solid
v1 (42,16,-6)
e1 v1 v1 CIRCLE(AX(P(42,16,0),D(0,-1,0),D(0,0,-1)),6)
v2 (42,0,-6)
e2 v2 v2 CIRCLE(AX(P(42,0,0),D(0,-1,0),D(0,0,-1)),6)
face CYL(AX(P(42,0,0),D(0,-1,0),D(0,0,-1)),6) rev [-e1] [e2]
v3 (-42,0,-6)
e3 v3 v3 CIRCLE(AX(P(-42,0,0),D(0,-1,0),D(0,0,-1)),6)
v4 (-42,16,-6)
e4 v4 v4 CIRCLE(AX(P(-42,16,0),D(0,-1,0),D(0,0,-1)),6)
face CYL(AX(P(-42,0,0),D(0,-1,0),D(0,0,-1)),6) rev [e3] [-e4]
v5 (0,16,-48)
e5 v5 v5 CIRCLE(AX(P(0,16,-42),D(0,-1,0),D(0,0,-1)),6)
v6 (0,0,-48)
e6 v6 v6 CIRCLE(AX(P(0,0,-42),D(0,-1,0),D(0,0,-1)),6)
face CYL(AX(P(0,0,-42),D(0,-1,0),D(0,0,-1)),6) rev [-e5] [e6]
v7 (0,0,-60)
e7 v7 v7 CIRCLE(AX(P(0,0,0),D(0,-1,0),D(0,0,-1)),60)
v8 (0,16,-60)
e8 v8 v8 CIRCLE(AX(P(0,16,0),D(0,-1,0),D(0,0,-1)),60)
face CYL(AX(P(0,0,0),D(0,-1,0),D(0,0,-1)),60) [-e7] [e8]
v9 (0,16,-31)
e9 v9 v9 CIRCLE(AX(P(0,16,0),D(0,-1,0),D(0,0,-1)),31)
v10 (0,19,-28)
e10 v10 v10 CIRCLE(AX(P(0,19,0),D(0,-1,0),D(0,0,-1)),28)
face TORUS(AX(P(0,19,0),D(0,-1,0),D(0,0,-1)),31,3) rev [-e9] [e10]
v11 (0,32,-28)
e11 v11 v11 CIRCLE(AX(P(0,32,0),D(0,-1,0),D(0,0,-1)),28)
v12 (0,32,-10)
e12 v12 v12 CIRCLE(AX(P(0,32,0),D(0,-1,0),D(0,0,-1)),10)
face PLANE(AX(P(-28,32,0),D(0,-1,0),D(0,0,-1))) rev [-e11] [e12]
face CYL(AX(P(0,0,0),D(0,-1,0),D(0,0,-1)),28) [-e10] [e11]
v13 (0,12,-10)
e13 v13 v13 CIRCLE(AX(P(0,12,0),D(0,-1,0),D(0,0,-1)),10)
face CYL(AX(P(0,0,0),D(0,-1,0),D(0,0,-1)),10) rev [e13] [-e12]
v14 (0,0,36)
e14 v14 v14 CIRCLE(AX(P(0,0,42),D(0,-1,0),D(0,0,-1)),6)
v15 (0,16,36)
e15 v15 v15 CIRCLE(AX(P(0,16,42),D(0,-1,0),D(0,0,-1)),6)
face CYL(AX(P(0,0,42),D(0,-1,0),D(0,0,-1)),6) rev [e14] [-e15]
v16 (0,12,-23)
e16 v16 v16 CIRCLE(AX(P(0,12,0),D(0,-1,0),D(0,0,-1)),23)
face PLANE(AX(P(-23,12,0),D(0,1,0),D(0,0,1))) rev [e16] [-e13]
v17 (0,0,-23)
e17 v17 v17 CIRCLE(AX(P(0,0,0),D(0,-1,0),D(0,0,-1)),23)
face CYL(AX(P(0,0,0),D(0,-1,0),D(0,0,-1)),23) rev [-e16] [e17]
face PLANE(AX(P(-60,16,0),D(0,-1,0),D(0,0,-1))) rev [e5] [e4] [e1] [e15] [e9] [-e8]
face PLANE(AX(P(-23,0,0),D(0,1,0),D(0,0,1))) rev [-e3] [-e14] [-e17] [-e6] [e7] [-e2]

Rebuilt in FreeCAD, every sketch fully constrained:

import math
import FreeCAD as App
import Part
import Sketcher
Q = App.Units.Quantity

doc = App.newDocument("Part")
body = doc.addObject("PartDesign::Body", "Body")

sketch1 = body.newObject("Sketcher::SketchObject", "Sketch")
sketch1.AttachmentSupport = (doc.getObject("XY_Plane"), [""])
sketch1.MapMode = "FlatFace"
sketch1.addGeometry([
    Part.LineSegment(App.Vector(-60, 16, 0), App.Vector(-60, 0, 0)),
    Part.LineSegment(App.Vector(-60, 0, 0), App.Vector(-23, 0, 0)),
    Part.LineSegment(App.Vector(-23, 0, 0), App.Vector(-23, 12, 0)),
    Part.LineSegment(App.Vector(-23, 12, 0), App.Vector(-10, 12, 0)),
    Part.LineSegment(App.Vector(-10, 12, 0), App.Vector(-10, 32, 0)),
    Part.LineSegment(App.Vector(-10, 32, 0), App.Vector(-28, 32, 0)),
    Part.LineSegment(App.Vector(-28, 32, 0), App.Vector(-28, 19, 0)),
    Part.ArcOfCircle(Part.Circle(App.Vector(-31, 19, 0), App.Vector(0, 0, 1), 3), math.radians(-90), math.radians(0)),
    Part.LineSegment(App.Vector(-31, 16, 0), App.Vector(-60, 16, 0)),
], False)
sketch1.addConstraint([
    Sketcher.Constraint("Coincident", 0, 2, 1, 1),
    Sketcher.Constraint("Coincident", 1, 2, 2, 1),
    Sketcher.Constraint("Coincident", 2, 2, 3, 1),
    Sketcher.Constraint("Coincident", 3, 2, 4, 1),
    Sketcher.Constraint("Coincident", 4, 2, 5, 1),
    Sketcher.Constraint("Coincident", 5, 2, 6, 1),
    Sketcher.Constraint("Tangent", 6, 2, 7, 2),
    Sketcher.Constraint("Tangent", 7, 1, 8, 1),
    Sketcher.Constraint("Coincident", 8, 2, 0, 1),
    Sketcher.Constraint("Vertical", 0),
    Sketcher.Constraint("Horizontal", 1),
    Sketcher.Constraint("Vertical", 2),
    Sketcher.Constraint("Horizontal", 3),
    Sketcher.Constraint("Vertical", 4),
    Sketcher.Constraint("Horizontal", 5),
    Sketcher.Constraint("Vertical", 6),
    Sketcher.Constraint("Horizontal", 8),
    Sketcher.Constraint("PointOnObject", 0, 2, -1),
    Sketcher.Constraint("Equal", 3, 6),
    Sketcher.Constraint("Radius", 7, Q("3 mm")),
    Sketcher.Constraint("DistanceX", 1, 1, 1, 2, Q("37 mm")),
    Sketcher.Constraint("DistanceX", 3, 1, 3, 2, Q("13 mm")),
    Sketcher.Constraint("DistanceX", 5, 2, 5, 1, Q("18 mm")),
    Sketcher.Constraint("DistanceY", 0, 2, 0, 1, Q("16 mm")),
    Sketcher.Constraint("DistanceY", 2, 1, 2, 2, Q("12 mm")),
    Sketcher.Constraint("DistanceX", 7, 3, -1, 1, Q("31 mm")),
])
revolution = body.newObject("PartDesign::Revolution", "Revolution")
revolution.Profile = sketch1
revolution.ReferenceAxis = (sketch1, ["V_Axis"])
revolution.Angle = 360

sketch2 = body.newObject("Sketcher::SketchObject", "Sketch001")
sketch2.AttachmentSupport = (doc.getObject("XZ_Plane"), [""])
sketch2.MapMode = "FlatFace"
sketch2.addGeometry(Part.Circle(App.Vector(0, 42, 0), App.Vector(0, 0, 1), 6), False)
sketch2.addConstraint([
    Sketcher.Constraint("PointOnObject", 0, 3, -2),
    Sketcher.Constraint("Diameter", 0, Q("12 mm")),
    Sketcher.Constraint("DistanceY", -1, 1, 0, 3, Q("42 mm")),
])
doc.recompute()
hole = body.newObject("PartDesign::Hole", "Hole")
hole.Profile = sketch2
hole.ThreadType = "None"
hole.Diameter = 12
hole.DepthType = "ThroughAll"
doc.recompute()

polarpattern = body.newObject("PartDesign::PolarPattern", "PolarPattern")
polarpattern.Originals = [hole]
polarpattern.Axis = (doc.getObject("Y_Axis"), [""])
polarpattern.Angle = 360
polarpattern.Occurrences = 4
body.Tip = polarpattern

doc.recompute()
